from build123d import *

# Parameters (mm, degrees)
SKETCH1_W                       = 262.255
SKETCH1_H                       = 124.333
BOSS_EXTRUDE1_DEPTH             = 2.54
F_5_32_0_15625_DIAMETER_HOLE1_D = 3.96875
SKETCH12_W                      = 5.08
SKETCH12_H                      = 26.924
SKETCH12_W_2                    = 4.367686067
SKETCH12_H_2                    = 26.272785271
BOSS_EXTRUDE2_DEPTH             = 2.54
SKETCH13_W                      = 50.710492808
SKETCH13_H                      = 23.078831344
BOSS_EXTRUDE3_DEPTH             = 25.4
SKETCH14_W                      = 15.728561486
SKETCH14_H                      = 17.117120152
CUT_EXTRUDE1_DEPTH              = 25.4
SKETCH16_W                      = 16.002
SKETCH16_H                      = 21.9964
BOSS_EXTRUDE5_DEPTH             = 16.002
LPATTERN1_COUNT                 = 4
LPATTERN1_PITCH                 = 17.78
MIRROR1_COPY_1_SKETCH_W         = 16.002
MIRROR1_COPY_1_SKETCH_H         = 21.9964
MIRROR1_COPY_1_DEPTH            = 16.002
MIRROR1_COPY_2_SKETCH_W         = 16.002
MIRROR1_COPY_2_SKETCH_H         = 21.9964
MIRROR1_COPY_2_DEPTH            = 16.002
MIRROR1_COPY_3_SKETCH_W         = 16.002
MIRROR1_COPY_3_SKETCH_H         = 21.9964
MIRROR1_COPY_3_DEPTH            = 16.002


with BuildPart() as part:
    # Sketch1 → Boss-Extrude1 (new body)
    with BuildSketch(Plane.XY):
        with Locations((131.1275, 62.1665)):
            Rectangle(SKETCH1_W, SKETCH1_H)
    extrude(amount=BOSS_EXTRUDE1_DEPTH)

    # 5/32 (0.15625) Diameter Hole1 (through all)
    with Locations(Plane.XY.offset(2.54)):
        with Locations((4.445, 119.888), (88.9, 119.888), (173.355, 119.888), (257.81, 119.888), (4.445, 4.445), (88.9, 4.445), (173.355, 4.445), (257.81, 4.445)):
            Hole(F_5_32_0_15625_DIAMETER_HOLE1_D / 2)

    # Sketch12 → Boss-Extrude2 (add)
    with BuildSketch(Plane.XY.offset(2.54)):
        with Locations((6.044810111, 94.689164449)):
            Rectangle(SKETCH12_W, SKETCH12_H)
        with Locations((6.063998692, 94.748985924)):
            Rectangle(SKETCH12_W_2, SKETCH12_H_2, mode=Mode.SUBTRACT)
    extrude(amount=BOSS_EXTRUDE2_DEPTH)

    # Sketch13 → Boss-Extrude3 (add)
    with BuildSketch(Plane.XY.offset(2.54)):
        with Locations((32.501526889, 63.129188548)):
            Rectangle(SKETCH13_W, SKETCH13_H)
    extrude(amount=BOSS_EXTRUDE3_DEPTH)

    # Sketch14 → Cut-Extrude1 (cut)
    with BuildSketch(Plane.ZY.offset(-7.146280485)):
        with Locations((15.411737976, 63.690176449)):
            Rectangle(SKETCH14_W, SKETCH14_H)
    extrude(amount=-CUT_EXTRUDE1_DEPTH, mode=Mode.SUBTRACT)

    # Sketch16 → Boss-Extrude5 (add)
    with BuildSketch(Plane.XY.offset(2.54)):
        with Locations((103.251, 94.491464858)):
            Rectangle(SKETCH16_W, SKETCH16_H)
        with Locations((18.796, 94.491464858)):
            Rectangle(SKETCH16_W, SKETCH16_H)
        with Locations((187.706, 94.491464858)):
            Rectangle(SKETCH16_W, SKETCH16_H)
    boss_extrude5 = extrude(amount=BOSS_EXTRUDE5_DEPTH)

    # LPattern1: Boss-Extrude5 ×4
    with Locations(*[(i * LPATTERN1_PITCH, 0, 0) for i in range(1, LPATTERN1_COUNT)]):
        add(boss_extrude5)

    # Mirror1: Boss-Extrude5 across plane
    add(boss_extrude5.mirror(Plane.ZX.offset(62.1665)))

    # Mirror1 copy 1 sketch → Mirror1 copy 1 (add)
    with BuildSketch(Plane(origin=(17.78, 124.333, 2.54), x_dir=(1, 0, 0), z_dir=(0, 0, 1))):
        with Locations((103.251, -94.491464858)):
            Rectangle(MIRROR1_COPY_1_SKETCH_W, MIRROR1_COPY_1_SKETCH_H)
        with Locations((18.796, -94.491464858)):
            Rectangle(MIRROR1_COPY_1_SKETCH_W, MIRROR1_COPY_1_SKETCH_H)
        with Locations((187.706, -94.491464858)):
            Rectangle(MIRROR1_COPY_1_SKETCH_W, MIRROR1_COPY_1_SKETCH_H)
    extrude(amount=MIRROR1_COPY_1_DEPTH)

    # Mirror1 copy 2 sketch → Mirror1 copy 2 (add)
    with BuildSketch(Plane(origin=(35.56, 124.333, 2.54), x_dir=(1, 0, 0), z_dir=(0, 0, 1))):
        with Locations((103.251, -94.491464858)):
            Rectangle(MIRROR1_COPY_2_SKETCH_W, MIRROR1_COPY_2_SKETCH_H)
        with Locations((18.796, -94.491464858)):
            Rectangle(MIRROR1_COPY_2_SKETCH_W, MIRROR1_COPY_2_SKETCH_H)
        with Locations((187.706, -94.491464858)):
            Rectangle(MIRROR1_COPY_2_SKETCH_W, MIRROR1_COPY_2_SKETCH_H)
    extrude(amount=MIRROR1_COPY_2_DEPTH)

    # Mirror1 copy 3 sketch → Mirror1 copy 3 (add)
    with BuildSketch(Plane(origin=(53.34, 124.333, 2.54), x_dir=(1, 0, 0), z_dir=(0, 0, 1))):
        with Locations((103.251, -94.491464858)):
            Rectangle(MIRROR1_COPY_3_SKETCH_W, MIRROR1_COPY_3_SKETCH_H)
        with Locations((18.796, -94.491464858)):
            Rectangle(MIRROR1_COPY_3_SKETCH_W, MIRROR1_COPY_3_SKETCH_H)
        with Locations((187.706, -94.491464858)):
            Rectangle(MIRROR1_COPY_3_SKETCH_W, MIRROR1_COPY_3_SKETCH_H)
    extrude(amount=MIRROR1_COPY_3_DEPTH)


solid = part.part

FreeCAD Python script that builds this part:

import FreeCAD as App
import Part
import Sketcher
from FreeCAD import Vector
Q = App.Units.Quantity

doc = App.newDocument("Part")
params = doc.addObject("Spreadsheet::Sheet", "Params")
for row, (alias, value) in enumerate([
    ("sketch1_width", "10.325 in"),
    ("sketch1_height", "4.895 in"),
    ("pad1_length", "0.1 in"),
    ("sketch2_diameter", "0.15625 in"),
    ("hole_diameter", "0.15625 in"),
    ("sketch3_width", "0.2 in"),
    ("sketch3_height", "1.06 in"),
    ("pad2_length", "0.1 in"),
    ("pad3_length", "1 in"),
    ("pocket1_length", "1 in"),
    ("sketch6_width", "0.63 in"),
    ("sketch6_height", "0.866 in"),
    ("pad4_length", "0.63 in"),
    ("linearpattern_pitch", "0.7 in"),
    ("sketch7_width", "0.63 in"),
    ("sketch7_height", "0.866 in"),
    ("pad5_length", "0.63 in"),
    ("sketch8_width", "0.63 in"),
    ("sketch8_height", "0.866 in"),
    ("pad6_length", "0.63 in"),
    ("sketch9_width", "0.63 in"),
    ("sketch9_height", "0.866 in"),
    ("pad7_length", "0.63 in"),
], start=1):
    params.set(f"A{row}", alias)
    params.set(f"B{row}", "=" + value)
    params.setAlias(f"B{row}", alias)

body = doc.addObject("PartDesign::Body", "Body")

# Sketch on XY plane
sketch1 = body.newObject("Sketcher::SketchObject", "Sketch")
sketch1.AttachmentSupport = (doc.getObject("XY_Plane"), [""])
sketch1.MapMode = "FlatFace"
sketch1.addGeometry([
    Part.LineSegment(Vector(0, 124.333, 0), Vector(0, 0, 0)),
    Part.LineSegment(Vector(0, 0, 0), Vector(262.255, 0, 0)),
    Part.LineSegment(Vector(262.255, 0, 0), Vector(262.255, 124.333, 0)),
    Part.LineSegment(Vector(262.255, 124.333, 0), Vector(0, 124.333, 0)),
], False)
sketch1.addConstraint([
    Sketcher.Constraint("Coincident", 0, 2, 1, 1),
    Sketcher.Constraint("Coincident", 1, 2, 2, 1),
    Sketcher.Constraint("Coincident", 2, 2, 3, 1),
    Sketcher.Constraint("Coincident", 3, 2, 0, 1),
    Sketcher.Constraint("Vertical", 0),
    Sketcher.Constraint("Horizontal", 1),
    Sketcher.Constraint("Vertical", 2),
    Sketcher.Constraint("Horizontal", 3),
    Sketcher.Constraint("Coincident", 0, 2, -1, 1),
    Sketcher.Constraint("DistanceX", 1, 1, 1, 2, Q("10.325 in")),
    Sketcher.Constraint("DistanceY", 0, 2, 0, 1, Q("4.895 in")),
])
sketch1.setExpression("Constraints[9]", "Params.sketch1_width")
sketch1.setExpression("Constraints[10]", "Params.sketch1_height")
pad1 = body.newObject("PartDesign::Pad", "Pad")
pad1.Profile = sketch1
pad1.setExpression("Length", "Params.pad1_length")

# Sketch on XY plane
sketch2 = body.newObject("Sketcher::SketchObject", "Sketch001")
sketch2.AttachmentSupport = (doc.getObject("XY_Plane"), [""])
sketch2.MapMode = "FlatFace"
sketch2.AttachmentOffset = App.Placement(Vector(0, 0, 0.1 * 25.4), App.Rotation())
sketch2.addGeometry([
    Part.Circle(Vector(4.445, 119.888, 0), Vector(0, 0, 1), 1.984375),  # 0
    Part.Circle(Vector(88.9, 119.888, 0), Vector(0, 0, 1), 1.984375),  # 1
    Part.Circle(Vector(173.355, 119.888, 0), Vector(0, 0, 1), 1.984375),  # 2
    Part.Circle(Vector(257.81, 119.888, 0), Vector(0, 0, 1), 1.984375),  # 3
    Part.Circle(Vector(4.445, 4.445, 0), Vector(0, 0, 1), 1.984375),  # 4
    Part.Circle(Vector(88.9, 4.445, 0), Vector(0, 0, 1), 1.984375),  # 5
    Part.Circle(Vector(173.355, 4.445, 0), Vector(0, 0, 1), 1.984375),  # 6
    Part.Circle(Vector(257.81, 4.445, 0), Vector(0, 0, 1), 1.984375),  # 7
], False)
sketch2.addConstraint([
    Sketcher.Constraint("Equal", 0, 1),
    Sketcher.Constraint("Equal", 1, 2),
    Sketcher.Constraint("Equal", 2, 3),
    Sketcher.Constraint("Equal", 3, 4),
    Sketcher.Constraint("Equal", 4, 5),
    Sketcher.Constraint("Equal", 5, 6),
    Sketcher.Constraint("Equal", 6, 7),
    Sketcher.Constraint("Horizontal", 0, 3, 1, 3),
    Sketcher.Constraint("Horizontal", 1, 3, 2, 3),
    Sketcher.Constraint("Horizontal", 2, 3, 3, 3),
    Sketcher.Constraint("Horizontal", 4, 3, 5, 3),
    Sketcher.Constraint("Horizontal", 5, 3, 6, 3),
    Sketcher.Constraint("Horizontal", 6, 3, 7, 3),
    Sketcher.Constraint("Vertical", 0, 3, 4, 3),
    Sketcher.Constraint("Vertical", 1, 3, 5, 3),
    Sketcher.Constraint("Vertical", 2, 3, 6, 3),
    Sketcher.Constraint("Vertical", 3, 3, 7, 3),
    Sketcher.Constraint("Diameter", 0, Q("0.15625 in")),
    Sketcher.Constraint("DistanceX", -1, 1, 1, 3, Q("3.5 in")),
    Sketcher.Constraint("DistanceY", -1, 1, 0, 3, Q("4.72 in")),
    Sketcher.Constraint("DistanceX", -1, 1, 3, 3, Q("10.15 in")),
    Sketcher.Constraint("DistanceX", 0, 3, 2, 3, Q("6.65 in")),
    Sketcher.Constraint("DistanceX", -1, 1, 0, 3, Q("0.175 in")),
    Sketcher.Constraint("DistanceY", -1, 1, 4, 3, Q("0.175 in")),
])
sketch2.setExpression("Constraints[17]", "Params.sketch2_diameter")
doc.recompute()
hole = body.newObject("PartDesign::Hole", "Hole")
hole.Profile = sketch2
hole.ThreadType = "None"
hole.setExpression("Diameter", "Params.hole_diameter")
hole.DepthType = "ThroughAll"

# Sketch on XY plane
sketch3 = body.newObject("Sketcher::SketchObject", "Sketch002")
sketch3.AttachmentSupport = (doc.getObject("XY_Plane"), [""])
sketch3.MapMode = "FlatFace"
sketch3.AttachmentOffset = App.Placement(Vector(0, 0, 0.1 * 25.4), App.Rotation())
sketch3.addGeometry([
    Part.LineSegment(Vector(3.50481, 108.151164, 0), Vector(3.50481, 81.227164, 0)),  # 0
    Part.LineSegment(Vector(3.50481, 81.227164, 0), Vector(8.58481, 81.227164, 0)),  # 1
    Part.LineSegment(Vector(8.58481, 81.227164, 0), Vector(8.58481, 108.151164, 0)),  # 2
    Part.LineSegment(Vector(8.58481, 108.151164, 0), Vector(3.50481, 108.151164, 0)),  # 3
    Part.LineSegment(Vector(8.247842, 81.612593, 0), Vector(3.880156, 81.612593, 0)),  # 4
    Part.LineSegment(Vector(3.880156, 81.612593, 0), Vector(3.880156, 107.885379, 0)),  # 5
    Part.LineSegment(Vector(3.880156, 107.885379, 0), Vector(8.247842, 107.885379, 0)),  # 6
    Part.LineSegment(Vector(8.247842, 107.885379, 0), Vector(8.247842, 81.612593, 0)),  # 7
], False)
sketch3.addConstraint([
    Sketcher.Constraint("Coincident", 0, 2, 1, 1),
    Sketcher.Constraint("Coincident", 1, 2, 2, 1),
    Sketcher.Constraint("Coincident", 2, 2, 3, 1),
    Sketcher.Constraint("Coincident", 3, 2, 0, 1),
    Sketcher.Constraint("Coincident", 4, 2, 5, 1),
    Sketcher.Constraint("Coincident", 5, 2, 6, 1),
    Sketcher.Constraint("Coincident", 6, 2, 7, 1),
    Sketcher.Constraint("Coincident", 7, 2, 4, 1),
    Sketcher.Constraint("Vertical", 0),
    Sketcher.Constraint("Horizontal", 1),
    Sketcher.Constraint("Vertical", 2),
    Sketcher.Constraint("Horizontal", 3),
    Sketcher.Constraint("Horizontal", 4),
    Sketcher.Constraint("Vertical", 5),
    Sketcher.Constraint("Horizontal", 6),
    Sketcher.Constraint("Vertical", 7),
    Sketcher.Constraint("DistanceX", 1, 1, 1, 2, Q("0.2 in")),
    Sketcher.Constraint("DistanceY", 0, 2, 0, 1, Q("1.06 in")),
    Sketcher.Constraint("DistanceX", 4, 2, 4, 1, Q("4.367686 mm")),
    Sketcher.Constraint("DistanceY", 5, 1, 5, 2, Q("26.272785 mm")),
    Sketcher.Constraint("DistanceX", -1, 1, 0, 2, Q("3.50481 mm")),
    Sketcher.Constraint("DistanceY", -1, 1, 5, 2, Q("107.885379 mm")),
    Sketcher.Constraint("DistanceX", -1, 1, 6, 2, Q("8.247842 mm")),
    Sketcher.Constraint("DistanceY", 0, 2, 4, 2, Q("0.385429 mm")),
])
sketch3.setExpression("Constraints[16]", "Params.sketch3_width")
sketch3.setExpression("Constraints[17]", "Params.sketch3_height")
pad2 = body.newObject("PartDesign::Pad", "Pad001")
pad2.Profile = sketch3
pad2.setExpression("Length", "Params.pad2_length")

# Sketch on XY plane
sketch4 = body.newObject("Sketcher::SketchObject", "Sketch003")
sketch4.AttachmentSupport = (doc.getObject("XY_Plane"), [""])
sketch4.MapMode = "FlatFace"
sketch4.AttachmentOffset = App.Placement(Vector(0, 0, 0.1 * 25.4), App.Rotation())
sketch4.addGeometry([
    Part.LineSegment(Vector(7.14628, 74.668604, 0), Vector(7.14628, 51.589773, 0)),
    Part.LineSegment(Vector(7.14628, 51.589773, 0), Vector(57.856773, 51.589773, 0)),
    Part.LineSegment(Vector(57.856773, 51.589773, 0), Vector(57.856773, 74.668604, 0)),
    Part.LineSegment(Vector(57.856773, 74.668604, 0), Vector(7.14628, 74.668604, 0)),
], False)
sketch4.addConstraint([
    Sketcher.Constraint("Coincident", 0, 2, 1, 1),
    Sketcher.Constraint("Coincident", 1, 2, 2, 1),
    Sketcher.Constraint("Coincident", 2, 2, 3, 1),
    Sketcher.Constraint("Coincident", 3, 2, 0, 1),
    Sketcher.Constraint("Vertical", 0),
    Sketcher.Constraint("Horizontal", 1),
    Sketcher.Constraint("Vertical", 2),
    Sketcher.Constraint("Horizontal", 3),
    Sketcher.Constraint("DistanceY", 0, 2, 0, 1, Q("23.078831 mm")),
    Sketcher.Constraint("DistanceX", 1, 1, 1, 2, Q("50.710493 mm")),
    Sketcher.Constraint("DistanceX", -1, 1, 0, 2, Q("7.14628 mm")),
    Sketcher.Constraint("DistanceY", -1, 1, 0, 2, Q("51.589773 mm")),
])
pad3 = body.newObject("PartDesign::Pad", "Pad002")
pad3.Profile = sketch4
pad3.setExpression("Length", "Params.pad3_length")

# Sketch on YZ plane
sketch5 = body.newObject("Sketcher::SketchObject", "Sketch004")
sketch5.AttachmentSupport = (doc.getObject("YZ_Plane"), [""])
sketch5.MapMode = "FlatFace"
sketch5.AttachmentOffset = App.Placement(Vector(0, 0, 7.14628), App.Rotation())
sketch5.addGeometry([
    Part.LineSegment(Vector(72.248737, 7.547457, 0), Vector(55.131616, 7.547457, 0)),
    Part.LineSegment(Vector(55.131616, 7.547457, 0), Vector(55.131616, 23.276019, 0)),
    Part.LineSegment(Vector(55.131616, 23.276019, 0), Vector(72.248737, 23.276019, 0)),
    Part.LineSegment(Vector(72.248737, 23.276019, 0), Vector(72.248737, 7.547457, 0)),
], False)
sketch5.addConstraint([
    Sketcher.Constraint("Coincident", 0, 2, 1, 1),
    Sketcher.Constraint("Coincident", 1, 2, 2, 1),
    Sketcher.Constraint("Coincident", 2, 2, 3, 1),
    Sketcher.Constraint("Coincident", 3, 2, 0, 1),
    Sketcher.Constraint("Horizontal", 0),
    Sketcher.Constraint("Vertical", 1),
    Sketcher.Constraint("Horizontal", 2),
    Sketcher.Constraint("Vertical", 3),
    Sketcher.Constraint("DistanceX", 0, 2, 0, 1, Q("17.11712 mm")),
    Sketcher.Constraint("DistanceY", 1, 1, 1, 2, Q("15.728561 mm")),
    Sketcher.Constraint("DistanceY", -1, 1, 1, 2, Q("23.276019 mm")),
    Sketcher.Constraint("DistanceX", -1, 1, 0, 2, Q("55.131616 mm")),
])
pocket1 = body.newObject("PartDesign::Pocket", "Pocket")
pocket1.Profile = sketch5
pocket1.setExpression("Length", "Params.pocket1_length")
pocket1.Reversed = True

# Sketch on XY plane
sketch6 = body.newObject("Sketcher::SketchObject", "Sketch005")
sketch6.AttachmentSupport = (doc.getObject("XY_Plane"), [""])
sketch6.MapMode = "FlatFace"
sketch6.AttachmentOffset = App.Placement(Vector(0, 0, 0.1 * 25.4), App.Rotation())
sketch6.addGeometry([
    Part.LineSegment(Vector(95.25, 105.489665, 0), Vector(95.25, 83.493265, 0)),  # 0
    Part.LineSegment(Vector(95.25, 83.493265, 0), Vector(111.252, 83.493265, 0)),  # 1
    Part.LineSegment(Vector(111.252, 83.493265, 0), Vector(111.252, 105.489665, 0)),  # 2
    Part.LineSegment(Vector(111.252, 105.489665, 0), Vector(95.25, 105.489665, 0)),  # 3
    Part.LineSegment(Vector(10.795, 105.489665, 0), Vector(10.795, 83.493265, 0)),  # 4
    Part.LineSegment(Vector(10.795, 83.493265, 0), Vector(26.797, 83.493265, 0)),  # 5
    Part.LineSegment(Vector(26.797, 83.493265, 0), Vector(26.797, 105.489665, 0)),  # 6
    Part.LineSegment(Vector(26.797, 105.489665, 0), Vector(10.795, 105.489665, 0)),  # 7
    Part.LineSegment(Vector(179.705, 105.489665, 0), Vector(179.705, 83.493265, 0)),  # 8
    Part.LineSegment(Vector(179.705, 83.493265, 0), Vector(195.707, 83.493265, 0)),  # 9
    Part.LineSegment(Vector(195.707, 83.493265, 0), Vector(195.707, 105.489665, 0)),  # 10
    Part.LineSegment(Vector(195.707, 105.489665, 0), Vector(179.705, 105.489665, 0)),  # 11
], False)
sketch6.addConstraint([
    Sketcher.Constraint("Coincident", 0, 2, 1, 1),
    Sketcher.Constraint("Coincident", 1, 2, 2, 1),
    Sketcher.Constraint("Coincident", 2, 2, 3, 1),
    Sketcher.Constraint("Coincident", 3, 2, 0, 1),
    Sketcher.Constraint("Coincident", 4, 2, 5, 1),
    Sketcher.Constraint("Coincident", 5, 2, 6, 1),
    Sketcher.Constraint("Coincident", 6, 2, 7, 1),
    Sketcher.Constraint("Coincident", 7, 2, 4, 1),
    Sketcher.Constraint("Coincident", 8, 2, 9, 1),
    Sketcher.Constraint("Coincident", 9, 2, 10, 1),
    Sketcher.Constraint("Coincident", 10, 2, 11, 1),
    Sketcher.Constraint("Coincident", 11, 2, 8, 1),
    Sketcher.Constraint("Vertical", 0),
    Sketcher.Constraint("Horizontal", 1),
    Sketcher.Constraint("Vertical", 2),
    Sketcher.Constraint("Horizontal", 3),
    Sketcher.Constraint("Vertical", 4),
    Sketcher.Constraint("Horizontal", 5),
    Sketcher.Constraint("Vertical", 6),
    Sketcher.Constraint("Horizontal", 7),
    Sketcher.Constraint("Vertical", 8),
    Sketcher.Constraint("Horizontal", 9),
    Sketcher.Constraint("Vertical", 10),
    Sketcher.Constraint("Horizontal", 11),
    Sketcher.Constraint("Horizontal", 1, 2, 4, 2),
    Sketcher.Constraint("Horizontal", 3, 2, 6, 2),
    Sketcher.Constraint("Horizontal", 5, 2, 8, 2),
    Sketcher.Constraint("Horizontal", 7, 2, 10, 2),
    Sketcher.Constraint("Equal", 3, 5),
    Sketcher.Constraint("Equal", 7, 9),
    Sketcher.Constraint("DistanceX", 1, 1, 1, 2, Q("0.63 in")),
    Sketcher.Constraint("DistanceY", 0, 2, 0, 1, Q("0.866 in")),
    Sketcher.Constraint("DistanceX", -1, 1, 0, 2, Q("3.75 in")),
    Sketcher.Constraint("DistanceX", 5, 2, 8, 2, Q("6.02 in")),
    Sketcher.Constraint("DistanceX", -1, 1, 4, 2, Q("0.425 in")),
    Sketcher.Constraint("DistanceY", -1, 1, 0, 2, Q("83.493265 mm")),
])
sketch6.setExpression("Constraints[30]", "Params.sketch6_width")
sketch6.setExpression("Constraints[31]", "Params.sketch6_height")
pad4 = body.newObject("PartDesign::Pad", "Pad003")
pad4.Profile = sketch6
pad4.setExpression("Length", "Params.pad4_length")
doc.recompute()

linearpattern = body.newObject("PartDesign::LinearPattern", "LinearPattern")
linearpattern.Originals = [pad4]
linearpattern.Direction = (doc.getObject("X_Axis"), [""])
linearpattern.Mode = "offset"
linearpattern.setExpression("Offset", "Params.linearpattern_pitch")
linearpattern.Occurrences = 4
body.Tip = linearpattern
doc.recompute()

datumplane = body.newObject("PartDesign::Plane", "DatumPlane")
datumplane.AttachmentSupport = (doc.getObject("XZ_Plane"), [""])
datumplane.MapMode = "FlatFace"
datumplane.AttachmentOffset = App.Placement(Vector(0, 0, -2.4475 * 25.4), App.Rotation())
mirrored = body.newObject("PartDesign::Mirrored", "Mirrored")
mirrored.Originals = [pad4]
mirrored.MirrorPlane = (datumplane, [""])
body.Tip = mirrored

# Sketch on XY plane
sketch7 = body.newObject("Sketcher::SketchObject", "Sketch006")
sketch7.AttachmentSupport = (doc.getObject("XY_Plane"), [""])
sketch7.MapMode = "FlatFace"
sketch7.AttachmentOffset = App.Placement(Vector(0, 0, 0.1 * 25.4), App.Rotation())
sketch7.addGeometry([
    Part.LineSegment(Vector(113.03, 40.839735, 0), Vector(113.03, 18.843335, 0)),  # 0
    Part.LineSegment(Vector(113.03, 18.843335, 0), Vector(129.032, 18.843335, 0)),  # 1
    Part.LineSegment(Vector(129.032, 18.843335, 0), Vector(129.032, 40.839735, 0)),  # 2
    Part.LineSegment(Vector(129.032, 40.839735, 0), Vector(113.03, 40.839735, 0)),  # 3
    Part.LineSegment(Vector(28.575, 40.839735, 0), Vector(28.575, 18.843335, 0)),  # 4
    Part.LineSegment(Vector(28.575, 18.843335, 0), Vector(44.577, 18.843335, 0)),  # 5
    Part.LineSegment(Vector(44.577, 18.843335, 0), Vector(44.577, 40.839735, 0)),  # 6
    Part.LineSegment(Vector(44.577, 40.839735, 0), Vector(28.575, 40.839735, 0)),  # 7
    Part.LineSegment(Vector(197.485, 40.839735, 0), Vector(197.485, 18.843335, 0)),  # 8
    Part.LineSegment(Vector(197.485, 18.843335, 0), Vector(213.487, 18.843335, 0)),  # 9
    Part.LineSegment(Vector(213.487, 18.843335, 0), Vector(213.487, 40.839735, 0)),  # 10
    Part.LineSegment(Vector(213.487, 40.839735, 0), Vector(197.485, 40.839735, 0)),  # 11
], False)
sketch7.addConstraint([
    Sketcher.Constraint("Coincident", 0, 2, 1, 1),
    Sketcher.Constraint("Coincident", 1, 2, 2, 1),
    Sketcher.Constraint("Coincident", 2, 2, 3, 1),
    Sketcher.Constraint("Coincident", 3, 2, 0, 1),
    Sketcher.Constraint("Coincident", 4, 2, 5, 1),
    Sketcher.Constraint("Coincident", 5, 2, 6, 1),
    Sketcher.Constraint("Coincident", 6, 2, 7, 1),
    Sketcher.Constraint("Coincident", 7, 2, 4, 1),
    Sketcher.Constraint("Coincident", 8, 2, 9, 1),
    Sketcher.Constraint("Coincident", 9, 2, 10, 1),
    Sketcher.Constraint("Coincident", 10, 2, 11, 1),
    Sketcher.Constraint("Coincident", 11, 2, 8, 1),
    Sketcher.Constraint("Vertical", 0),
    Sketcher.Constraint("Horizontal", 1),
    Sketcher.Constraint("Vertical", 2),
    Sketcher.Constraint("Horizontal", 3),
    Sketcher.Constraint("Vertical", 4),
    Sketcher.Constraint("Horizontal", 5),
    Sketcher.Constraint("Vertical", 6),
    Sketcher.Constraint("Horizontal", 7),
    Sketcher.Constraint("Vertical", 8),
    Sketcher.Constraint("Horizontal", 9),
    Sketcher.Constraint("Vertical", 10),
    Sketcher.Constraint("Horizontal", 11),
    Sketcher.Constraint("Horizontal", 1, 2, 4, 2),
    Sketcher.Constraint("Horizontal", 3, 2, 6, 2),
    Sketcher.Constraint("Horizontal", 5, 2, 8, 2),
    Sketcher.Constraint("Horizontal", 7, 2, 10, 2),
    Sketcher.Constraint("Equal", 3, 5),
    Sketcher.Constraint("Equal", 7, 9),
    Sketcher.Constraint("DistanceX", 1, 1, 1, 2, Q("0.63 in")),
    Sketcher.Constraint("DistanceY", 0, 2, 0, 1, Q("0.866 in")),
    Sketcher.Constraint("DistanceX", -1, 1, 0, 2, Q("4.45 in")),
    Sketcher.Constraint("DistanceX", 5, 2, 8, 2, Q("6.02 in")),
    Sketcher.Constraint("DistanceX", -1, 1, 4, 2, Q("1.125 in")),
    Sketcher.Constraint("DistanceY", -1, 1, 0, 2, Q("18.843335 mm")),
])
sketch7.setExpression("Constraints[30]", "Params.sketch7_width")
sketch7.setExpression("Constraints[31]", "Params.sketch7_height")
pad5 = body.newObject("PartDesign::Pad", "Pad004")
pad5.Profile = sketch7
pad5.setExpression("Length", "Params.pad5_length")

# Sketch on XY plane
sketch8 = body.newObject("Sketcher::SketchObject", "Sketch007")
sketch8.AttachmentSupport = (doc.getObject("XY_Plane"), [""])
sketch8.MapMode = "FlatFace"
sketch8.AttachmentOffset = App.Placement(Vector(0, 0, 0.1 * 25.4), App.Rotation())
sketch8.addGeometry([
    Part.LineSegment(Vector(130.81, 40.839735, 0), Vector(130.81, 18.843335, 0)),  # 0
    Part.LineSegment(Vector(130.81, 18.843335, 0), Vector(146.812, 18.843335, 0)),  # 1
    Part.LineSegment(Vector(146.812, 18.843335, 0), Vector(146.812, 40.839735, 0)),  # 2
    Part.LineSegment(Vector(146.812, 40.839735, 0), Vector(130.81, 40.839735, 0)),  # 3
    Part.LineSegment(Vector(46.355, 40.839735, 0), Vector(46.355, 18.843335, 0)),  # 4
    Part.LineSegment(Vector(46.355, 18.843335, 0), Vector(62.357, 18.843335, 0)),  # 5
    Part.LineSegment(Vector(62.357, 18.843335, 0), Vector(62.357, 40.839735, 0)),  # 6
    Part.LineSegment(Vector(62.357, 40.839735, 0), Vector(46.355, 40.839735, 0)),  # 7
    Part.LineSegment(Vector(215.265, 40.839735, 0), Vector(215.265, 18.843335, 0)),  # 8
    Part.LineSegment(Vector(215.265, 18.843335, 0), Vector(231.267, 18.843335, 0)),  # 9
    Part.LineSegment(Vector(231.267, 18.843335, 0), Vector(231.267, 40.839735, 0)),  # 10
    Part.LineSegment(Vector(231.267, 40.839735, 0), Vector(215.265, 40.839735, 0)),  # 11
], False)
sketch8.addConstraint([
    Sketcher.Constraint("Coincident", 0, 2, 1, 1),
    Sketcher.Constraint("Coincident", 1, 2, 2, 1),
    Sketcher.Constraint("Coincident", 2, 2, 3, 1),
    Sketcher.Constraint("Coincident", 3, 2, 0, 1),
    Sketcher.Constraint("Coincident", 4, 2, 5, 1),
    Sketcher.Constraint("Coincident", 5, 2, 6, 1),
    Sketcher.Constraint("Coincident", 6, 2, 7, 1),
    Sketcher.Constraint("Coincident", 7, 2, 4, 1),
    Sketcher.Constraint("Coincident", 8, 2, 9, 1),
    Sketcher.Constraint("Coincident", 9, 2, 10, 1),
    Sketcher.Constraint("Coincident", 10, 2, 11, 1),
    Sketcher.Constraint("Coincident", 11, 2, 8, 1),
    Sketcher.Constraint("Vertical", 0),
    Sketcher.Constraint("Horizontal", 1),
    Sketcher.Constraint("Vertical", 2),
    Sketcher.Constraint("Horizontal", 3),
    Sketcher.Constraint("Vertical", 4),
    Sketcher.Constraint("Horizontal", 5),
    Sketcher.Constraint("Vertical", 6),
    Sketcher.Constraint("Horizontal", 7),
    Sketcher.Constraint("Vertical", 8),
    Sketcher.Constraint("Horizontal", 9),
    Sketcher.Constraint("Vertical", 10),
    Sketcher.Constraint("Horizontal", 11),
    Sketcher.Constraint("Horizontal", 1, 2, 4, 2),
    Sketcher.Constraint("Horizontal", 3, 2, 6, 2),
    Sketcher.Constraint("Horizontal", 5, 2, 8, 2),
    Sketcher.Constraint("Horizontal", 7, 2, 10, 2),
    Sketcher.Constraint("Equal", 3, 5),
    Sketcher.Constraint("Equal", 7, 9),
    Sketcher.Constraint("DistanceX", 1, 1, 1, 2, Q("0.63 in")),
    Sketcher.Constraint("DistanceY", 0, 2, 0, 1, Q("0.866 in")),
    Sketcher.Constraint("DistanceX", -1, 1, 0, 2, Q("5.15 in")),
    Sketcher.Constraint("DistanceX", 5, 2, 8, 2, Q("6.02 in")),
    Sketcher.Constraint("DistanceX", -1, 1, 4, 2, Q("1.825 in")),
    Sketcher.Constraint("DistanceY", -1, 1, 0, 2, Q("18.843335 mm")),
])
sketch8.setExpression("Constraints[30]", "Params.sketch8_width")
sketch8.setExpression("Constraints[31]", "Params.sketch8_height")
pad6 = body.newObject("PartDesign::Pad", "Pad005")
pad6.Profile = sketch8
pad6.setExpression("Length", "Params.pad6_length")

# Sketch on XY plane
sketch9 = body.newObject("Sketcher::SketchObject", "Sketch008")
sketch9.AttachmentSupport = (doc.getObject("XY_Plane"), [""])
sketch9.MapMode = "FlatFace"
sketch9.AttachmentOffset = App.Placement(Vector(0, 0, 0.1 * 25.4), App.Rotation())
sketch9.addGeometry([
    Part.LineSegment(Vector(148.59, 40.839735, 0), Vector(148.59, 18.843335, 0)),  # 0
    Part.LineSegment(Vector(148.59, 18.843335, 0), Vector(164.592, 18.843335, 0)),  # 1
    Part.LineSegment(Vector(164.592, 18.843335, 0), Vector(164.592, 40.839735, 0)),  # 2
    Part.LineSegment(Vector(164.592, 40.839735, 0), Vector(148.59, 40.839735, 0)),  # 3
    Part.LineSegment(Vector(64.135, 40.839735, 0), Vector(64.135, 18.843335, 0)),  # 4
    Part.LineSegment(Vector(64.135, 18.843335, 0), Vector(80.137, 18.843335, 0)),  # 5
    Part.LineSegment(Vector(80.137, 18.843335, 0), Vector(80.137, 40.839735, 0)),  # 6
    Part.LineSegment(Vector(80.137, 40.839735, 0), Vector(64.135, 40.839735, 0)),  # 7
    Part.LineSegment(Vector(233.045, 40.839735, 0), Vector(233.045, 18.843335, 0)),  # 8
    Part.LineSegment(Vector(233.045, 18.843335, 0), Vector(249.047, 18.843335, 0)),  # 9
    Part.LineSegment(Vector(249.047, 18.843335, 0), Vector(249.047, 40.839735, 0)),  # 10
    Part.LineSegment(Vector(249.047, 40.839735, 0), Vector(233.045, 40.839735, 0)),  # 11
], False)
sketch9.addConstraint([
    Sketcher.Constraint("Coincident", 0, 2, 1, 1),
    Sketcher.Constraint("Coincident", 1, 2, 2, 1),
    Sketcher.Constraint("Coincident", 2, 2, 3, 1),
    Sketcher.Constraint("Coincident", 3, 2, 0, 1),
    Sketcher.Constraint("Coincident", 4, 2, 5, 1),
    Sketcher.Constraint("Coincident", 5, 2, 6, 1),
    Sketcher.Constraint("Coincident", 6, 2, 7, 1),
    Sketcher.Constraint("Coincident", 7, 2, 4, 1),
    Sketcher.Constraint("Coincident", 8, 2, 9, 1),
    Sketcher.Constraint("Coincident", 9, 2, 10, 1),
    Sketcher.Constraint("Coincident", 10, 2, 11, 1),
    Sketcher.Constraint("Coincident", 11, 2, 8, 1),
    Sketcher.Constraint("Vertical", 0),
    Sketcher.Constraint("Horizontal", 1),
    Sketcher.Constraint("Vertical", 2),
    Sketcher.Constraint("Horizontal", 3),
    Sketcher.Constraint("Vertical", 4),
    Sketcher.Constraint("Horizontal", 5),
    Sketcher.Constraint("Vertical", 6),
    Sketcher.Constraint("Horizontal", 7),
    Sketcher.Constraint("Vertical", 8),
    Sketcher.Constraint("Horizontal", 9),
    Sketcher.Constraint("Vertical", 10),
    Sketcher.Constraint("Horizontal", 11),
    Sketcher.Constraint("Horizontal", 1, 2, 4, 2),
    Sketcher.Constraint("Horizontal", 3, 2, 6, 2),
    Sketcher.Constraint("Horizontal", 5, 2, 8, 2),
    Sketcher.Constraint("Horizontal", 7, 2, 10, 2),
    Sketcher.Constraint("Equal", 3, 5),
    Sketcher.Constraint("Equal", 7, 9),
    Sketcher.Constraint("DistanceX", 1, 1, 1, 2, Q("0.63 in")),
    Sketcher.Constraint("DistanceY", 0, 2, 0, 1, Q("0.866 in")),
    Sketcher.Constraint("DistanceX", -1, 1, 0, 2, Q("5.85 in")),
    Sketcher.Constraint("DistanceX", 5, 2, 8, 2, Q("6.02 in")),
    Sketcher.Constraint("DistanceX", -1, 1, 4, 2, Q("2.525 in")),
    Sketcher.Constraint("DistanceY", -1, 1, 0, 2, Q("18.843335 mm")),
])
sketch9.setExpression("Constraints[30]", "Params.sketch9_width")
sketch9.setExpression("Constraints[31]", "Params.sketch9_height")
pad7 = body.newObject("PartDesign::Pad", "Pad006")
pad7.Profile = sketch9
pad7.setExpression("Length", "Params.pad7_length")

doc.recompute()
